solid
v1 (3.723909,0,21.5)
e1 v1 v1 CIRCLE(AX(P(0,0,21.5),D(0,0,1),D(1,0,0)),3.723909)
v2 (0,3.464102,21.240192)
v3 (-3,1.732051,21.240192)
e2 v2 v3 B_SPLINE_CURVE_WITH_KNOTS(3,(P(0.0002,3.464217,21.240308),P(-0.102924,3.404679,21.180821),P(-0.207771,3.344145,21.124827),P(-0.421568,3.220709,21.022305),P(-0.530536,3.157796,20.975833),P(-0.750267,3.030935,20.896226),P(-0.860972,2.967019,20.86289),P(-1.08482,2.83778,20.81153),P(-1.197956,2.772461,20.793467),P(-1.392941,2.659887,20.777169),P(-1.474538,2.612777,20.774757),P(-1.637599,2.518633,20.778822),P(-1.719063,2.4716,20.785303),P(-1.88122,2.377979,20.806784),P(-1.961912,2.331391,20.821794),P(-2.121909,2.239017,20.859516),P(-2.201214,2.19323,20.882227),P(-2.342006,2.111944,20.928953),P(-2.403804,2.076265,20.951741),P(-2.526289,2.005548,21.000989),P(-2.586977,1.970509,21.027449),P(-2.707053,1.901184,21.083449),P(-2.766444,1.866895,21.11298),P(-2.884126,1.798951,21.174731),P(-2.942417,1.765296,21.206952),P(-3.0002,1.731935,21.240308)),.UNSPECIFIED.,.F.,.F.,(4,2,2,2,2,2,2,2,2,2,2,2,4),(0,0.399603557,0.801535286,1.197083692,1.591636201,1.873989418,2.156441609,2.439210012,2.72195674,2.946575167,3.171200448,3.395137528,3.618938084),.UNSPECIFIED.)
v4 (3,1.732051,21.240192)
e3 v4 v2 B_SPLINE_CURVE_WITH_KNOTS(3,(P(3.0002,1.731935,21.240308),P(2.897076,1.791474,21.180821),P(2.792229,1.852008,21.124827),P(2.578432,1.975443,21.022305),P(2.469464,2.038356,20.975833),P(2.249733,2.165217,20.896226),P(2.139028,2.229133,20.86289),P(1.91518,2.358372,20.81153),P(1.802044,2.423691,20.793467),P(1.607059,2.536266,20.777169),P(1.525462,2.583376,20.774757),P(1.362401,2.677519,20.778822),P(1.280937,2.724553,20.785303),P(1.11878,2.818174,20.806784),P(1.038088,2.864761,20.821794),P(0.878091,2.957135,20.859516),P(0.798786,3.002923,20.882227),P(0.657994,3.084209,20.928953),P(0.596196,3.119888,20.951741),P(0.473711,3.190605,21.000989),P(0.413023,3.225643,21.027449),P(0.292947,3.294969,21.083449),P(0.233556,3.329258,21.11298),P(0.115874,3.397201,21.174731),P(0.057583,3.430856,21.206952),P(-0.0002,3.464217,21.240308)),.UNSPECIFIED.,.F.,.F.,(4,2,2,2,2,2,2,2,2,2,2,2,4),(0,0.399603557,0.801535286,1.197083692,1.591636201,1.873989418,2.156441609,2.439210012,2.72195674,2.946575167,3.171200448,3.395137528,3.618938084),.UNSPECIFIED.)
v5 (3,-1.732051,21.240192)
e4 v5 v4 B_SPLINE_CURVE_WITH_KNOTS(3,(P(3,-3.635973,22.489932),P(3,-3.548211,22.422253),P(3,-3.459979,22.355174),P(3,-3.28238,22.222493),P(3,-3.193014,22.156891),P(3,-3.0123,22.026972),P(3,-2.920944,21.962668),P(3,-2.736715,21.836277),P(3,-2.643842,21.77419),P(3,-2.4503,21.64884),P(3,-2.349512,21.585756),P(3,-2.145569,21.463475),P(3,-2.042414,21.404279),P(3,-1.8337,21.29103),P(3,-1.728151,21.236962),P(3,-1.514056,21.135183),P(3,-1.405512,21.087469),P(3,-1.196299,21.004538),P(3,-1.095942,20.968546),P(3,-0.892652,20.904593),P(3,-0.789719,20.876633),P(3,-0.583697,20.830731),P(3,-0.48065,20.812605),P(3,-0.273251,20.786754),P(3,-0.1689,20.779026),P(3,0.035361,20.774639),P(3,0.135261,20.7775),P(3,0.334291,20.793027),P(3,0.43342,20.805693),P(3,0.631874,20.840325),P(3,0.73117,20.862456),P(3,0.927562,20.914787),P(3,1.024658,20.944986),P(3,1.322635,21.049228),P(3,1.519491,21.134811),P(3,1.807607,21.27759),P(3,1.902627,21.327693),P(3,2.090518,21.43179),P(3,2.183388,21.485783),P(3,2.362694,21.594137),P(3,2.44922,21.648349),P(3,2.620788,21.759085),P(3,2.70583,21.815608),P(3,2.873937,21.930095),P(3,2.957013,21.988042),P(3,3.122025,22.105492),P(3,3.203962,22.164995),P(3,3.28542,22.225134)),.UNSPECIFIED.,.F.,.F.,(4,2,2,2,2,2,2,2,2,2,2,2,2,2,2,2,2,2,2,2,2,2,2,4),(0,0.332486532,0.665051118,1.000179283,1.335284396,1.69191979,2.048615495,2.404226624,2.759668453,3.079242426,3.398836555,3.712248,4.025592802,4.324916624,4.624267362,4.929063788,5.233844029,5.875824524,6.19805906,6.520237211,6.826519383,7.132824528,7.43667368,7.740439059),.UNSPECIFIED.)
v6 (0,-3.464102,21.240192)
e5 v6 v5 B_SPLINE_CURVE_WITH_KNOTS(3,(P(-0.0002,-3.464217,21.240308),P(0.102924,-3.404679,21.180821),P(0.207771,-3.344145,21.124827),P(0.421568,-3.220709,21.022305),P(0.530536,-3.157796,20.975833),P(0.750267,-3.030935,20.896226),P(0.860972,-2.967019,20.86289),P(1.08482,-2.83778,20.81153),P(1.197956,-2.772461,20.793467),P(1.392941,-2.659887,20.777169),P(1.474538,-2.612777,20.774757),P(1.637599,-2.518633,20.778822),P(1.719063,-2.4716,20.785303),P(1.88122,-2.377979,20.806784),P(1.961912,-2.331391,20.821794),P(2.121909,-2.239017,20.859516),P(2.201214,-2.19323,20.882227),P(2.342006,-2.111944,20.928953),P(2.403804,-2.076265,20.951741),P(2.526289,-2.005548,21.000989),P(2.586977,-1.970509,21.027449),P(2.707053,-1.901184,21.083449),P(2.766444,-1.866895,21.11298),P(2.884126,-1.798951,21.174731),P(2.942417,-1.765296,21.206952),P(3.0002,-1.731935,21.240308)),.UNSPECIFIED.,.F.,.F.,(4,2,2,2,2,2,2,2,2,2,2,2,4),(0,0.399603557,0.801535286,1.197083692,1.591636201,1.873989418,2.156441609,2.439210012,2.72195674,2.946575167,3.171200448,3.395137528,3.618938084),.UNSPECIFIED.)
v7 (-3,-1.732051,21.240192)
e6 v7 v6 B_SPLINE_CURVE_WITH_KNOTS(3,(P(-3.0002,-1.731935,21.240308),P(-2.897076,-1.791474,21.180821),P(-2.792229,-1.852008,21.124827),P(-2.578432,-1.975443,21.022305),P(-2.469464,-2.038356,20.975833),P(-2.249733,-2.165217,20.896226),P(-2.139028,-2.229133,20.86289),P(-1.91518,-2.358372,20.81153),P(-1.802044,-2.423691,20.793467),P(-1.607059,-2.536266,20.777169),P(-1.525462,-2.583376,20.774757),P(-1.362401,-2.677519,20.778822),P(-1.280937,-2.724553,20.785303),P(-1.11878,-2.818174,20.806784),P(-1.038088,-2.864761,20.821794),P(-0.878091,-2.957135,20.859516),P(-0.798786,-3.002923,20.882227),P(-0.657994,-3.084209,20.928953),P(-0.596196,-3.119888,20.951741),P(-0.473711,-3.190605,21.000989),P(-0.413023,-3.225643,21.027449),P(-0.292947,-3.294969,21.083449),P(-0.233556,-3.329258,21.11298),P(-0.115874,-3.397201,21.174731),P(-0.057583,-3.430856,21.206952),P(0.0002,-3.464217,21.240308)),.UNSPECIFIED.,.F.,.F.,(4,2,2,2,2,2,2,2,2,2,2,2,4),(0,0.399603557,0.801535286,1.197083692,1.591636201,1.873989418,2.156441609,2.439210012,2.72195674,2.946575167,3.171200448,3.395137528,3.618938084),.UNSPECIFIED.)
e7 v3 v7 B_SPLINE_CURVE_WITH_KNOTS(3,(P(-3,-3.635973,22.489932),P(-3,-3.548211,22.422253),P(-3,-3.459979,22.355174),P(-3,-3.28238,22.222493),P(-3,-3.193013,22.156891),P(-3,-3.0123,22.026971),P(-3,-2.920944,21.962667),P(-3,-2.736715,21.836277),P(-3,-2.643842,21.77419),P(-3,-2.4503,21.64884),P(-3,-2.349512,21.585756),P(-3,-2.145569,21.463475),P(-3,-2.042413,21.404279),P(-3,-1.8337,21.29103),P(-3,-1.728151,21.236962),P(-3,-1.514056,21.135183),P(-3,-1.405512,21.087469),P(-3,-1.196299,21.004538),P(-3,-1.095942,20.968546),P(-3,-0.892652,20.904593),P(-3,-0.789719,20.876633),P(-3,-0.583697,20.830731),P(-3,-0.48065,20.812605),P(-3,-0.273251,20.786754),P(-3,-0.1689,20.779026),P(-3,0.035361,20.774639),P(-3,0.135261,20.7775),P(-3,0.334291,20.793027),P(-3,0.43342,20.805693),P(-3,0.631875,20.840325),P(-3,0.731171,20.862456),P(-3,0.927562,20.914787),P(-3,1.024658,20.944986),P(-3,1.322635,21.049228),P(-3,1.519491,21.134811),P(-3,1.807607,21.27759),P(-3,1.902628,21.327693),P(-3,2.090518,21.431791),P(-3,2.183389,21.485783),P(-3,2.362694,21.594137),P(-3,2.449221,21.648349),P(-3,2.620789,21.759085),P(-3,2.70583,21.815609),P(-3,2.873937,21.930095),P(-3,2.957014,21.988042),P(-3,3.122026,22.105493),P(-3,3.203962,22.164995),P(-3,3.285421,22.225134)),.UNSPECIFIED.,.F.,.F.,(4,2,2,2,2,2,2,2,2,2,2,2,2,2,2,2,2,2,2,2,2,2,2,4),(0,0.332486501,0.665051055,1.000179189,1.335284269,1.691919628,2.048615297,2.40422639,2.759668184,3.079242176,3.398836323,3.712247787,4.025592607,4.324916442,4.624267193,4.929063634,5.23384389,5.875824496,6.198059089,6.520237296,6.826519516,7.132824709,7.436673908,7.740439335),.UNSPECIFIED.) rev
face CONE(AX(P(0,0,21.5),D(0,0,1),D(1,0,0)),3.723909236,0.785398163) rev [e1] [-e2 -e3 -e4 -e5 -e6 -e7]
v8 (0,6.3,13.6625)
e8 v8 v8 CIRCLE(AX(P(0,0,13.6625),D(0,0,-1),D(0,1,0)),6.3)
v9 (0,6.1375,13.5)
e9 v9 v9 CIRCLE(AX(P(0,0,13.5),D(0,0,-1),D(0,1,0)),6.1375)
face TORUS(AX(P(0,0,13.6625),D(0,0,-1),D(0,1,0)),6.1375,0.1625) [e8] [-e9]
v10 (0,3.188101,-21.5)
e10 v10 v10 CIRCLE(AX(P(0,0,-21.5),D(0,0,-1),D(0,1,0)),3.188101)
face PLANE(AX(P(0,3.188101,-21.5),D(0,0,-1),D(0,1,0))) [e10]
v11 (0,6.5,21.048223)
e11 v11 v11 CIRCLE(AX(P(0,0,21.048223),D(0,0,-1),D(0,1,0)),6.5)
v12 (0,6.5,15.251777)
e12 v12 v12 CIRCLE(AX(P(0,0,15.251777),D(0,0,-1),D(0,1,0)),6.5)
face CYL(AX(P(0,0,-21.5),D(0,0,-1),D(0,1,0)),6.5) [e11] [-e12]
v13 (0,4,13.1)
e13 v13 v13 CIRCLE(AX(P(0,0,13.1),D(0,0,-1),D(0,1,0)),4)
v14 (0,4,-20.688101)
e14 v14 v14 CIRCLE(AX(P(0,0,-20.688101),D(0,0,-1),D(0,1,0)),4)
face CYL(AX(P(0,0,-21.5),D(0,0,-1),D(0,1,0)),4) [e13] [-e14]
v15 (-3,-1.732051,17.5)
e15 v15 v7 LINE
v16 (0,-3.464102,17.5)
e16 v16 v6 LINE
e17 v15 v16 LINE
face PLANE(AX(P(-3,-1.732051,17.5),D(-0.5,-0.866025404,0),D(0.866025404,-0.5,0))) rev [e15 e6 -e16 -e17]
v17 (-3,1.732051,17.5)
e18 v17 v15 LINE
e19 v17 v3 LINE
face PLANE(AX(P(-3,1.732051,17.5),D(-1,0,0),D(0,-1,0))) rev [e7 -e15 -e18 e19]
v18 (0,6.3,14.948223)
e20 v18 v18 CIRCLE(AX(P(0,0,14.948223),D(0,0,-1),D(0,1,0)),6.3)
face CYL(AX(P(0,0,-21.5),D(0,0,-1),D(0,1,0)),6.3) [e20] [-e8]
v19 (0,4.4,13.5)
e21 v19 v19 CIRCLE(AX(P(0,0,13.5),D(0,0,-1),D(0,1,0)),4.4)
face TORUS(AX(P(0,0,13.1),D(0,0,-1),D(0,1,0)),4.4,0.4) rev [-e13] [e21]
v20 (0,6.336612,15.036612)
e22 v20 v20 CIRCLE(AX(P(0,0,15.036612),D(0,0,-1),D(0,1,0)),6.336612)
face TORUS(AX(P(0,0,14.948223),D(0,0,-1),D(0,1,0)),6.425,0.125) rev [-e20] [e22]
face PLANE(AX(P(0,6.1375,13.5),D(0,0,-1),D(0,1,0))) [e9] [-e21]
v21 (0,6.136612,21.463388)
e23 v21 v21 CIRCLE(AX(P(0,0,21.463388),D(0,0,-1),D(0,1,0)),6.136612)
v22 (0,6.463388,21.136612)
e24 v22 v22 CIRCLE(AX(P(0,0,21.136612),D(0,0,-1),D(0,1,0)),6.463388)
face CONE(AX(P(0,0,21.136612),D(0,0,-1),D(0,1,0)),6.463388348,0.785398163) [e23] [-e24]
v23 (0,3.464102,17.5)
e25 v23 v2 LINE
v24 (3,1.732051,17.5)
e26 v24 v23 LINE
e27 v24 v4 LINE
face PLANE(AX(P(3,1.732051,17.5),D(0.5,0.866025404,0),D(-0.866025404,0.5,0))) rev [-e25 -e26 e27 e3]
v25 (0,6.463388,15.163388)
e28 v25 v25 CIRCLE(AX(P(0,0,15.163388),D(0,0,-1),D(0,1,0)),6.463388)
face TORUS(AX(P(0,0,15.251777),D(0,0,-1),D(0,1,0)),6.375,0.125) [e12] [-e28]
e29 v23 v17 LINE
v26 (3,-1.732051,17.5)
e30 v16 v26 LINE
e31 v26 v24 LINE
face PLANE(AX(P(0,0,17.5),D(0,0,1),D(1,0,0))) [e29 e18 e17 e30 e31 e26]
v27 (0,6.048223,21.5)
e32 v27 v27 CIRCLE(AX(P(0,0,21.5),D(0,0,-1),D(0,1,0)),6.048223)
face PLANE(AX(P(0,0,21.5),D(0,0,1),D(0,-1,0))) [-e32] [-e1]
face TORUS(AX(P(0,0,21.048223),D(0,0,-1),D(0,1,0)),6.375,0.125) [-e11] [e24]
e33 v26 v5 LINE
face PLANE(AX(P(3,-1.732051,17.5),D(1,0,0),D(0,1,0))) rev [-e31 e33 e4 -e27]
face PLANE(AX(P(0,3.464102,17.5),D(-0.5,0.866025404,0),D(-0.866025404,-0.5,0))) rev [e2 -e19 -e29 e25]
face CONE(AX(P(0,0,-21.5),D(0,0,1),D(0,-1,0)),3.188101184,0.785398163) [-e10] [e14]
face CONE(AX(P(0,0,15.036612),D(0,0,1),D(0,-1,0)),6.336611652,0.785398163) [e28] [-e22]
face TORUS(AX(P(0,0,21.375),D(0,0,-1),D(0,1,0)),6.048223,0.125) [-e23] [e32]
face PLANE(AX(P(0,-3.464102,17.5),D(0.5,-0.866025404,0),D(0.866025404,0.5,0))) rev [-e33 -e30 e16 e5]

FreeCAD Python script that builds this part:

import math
import FreeCAD as App
import Part
import Sketcher
from FreeCAD import Vector
Q = App.Units.Quantity

doc = App.newDocument("Part")
body = doc.addObject("PartDesign::Body", "Body")

# Sketch on YZ plane
sketch1 = doc.addObject("Sketcher::SketchObject", "Sketch")
body.addObject(sketch1)
sketch1.AttachmentSupport = (doc.YZ_Plane, [""])
sketch1.MapMode = "FlatFace"
sketch1.addGeometry(Part.LineSegment(Vector(6.05, 21.5, 0), Vector(0, 21.5, 0)), False)
sketch1.addGeometry(Part.LineSegment(Vector(0, 21.5, 0), Vector(0, -21.5, 0)), False)
sketch1.addGeometry(Part.LineSegment(Vector(0, -21.5, 0), Vector(3.19, -21.5, 0)), False)
sketch1.addGeometry(Part.LineSegment(Vector(3.19, -21.5, 0), Vector(4, -20.69, 0)), False)
sketch1.addGeometry(Part.LineSegment(Vector(4, -20.69, 0), Vector(4, 13.1, 0)), False)
sketch1.addGeometry(Part.ArcOfCircle(Part.Circle(Vector(4.4, 13.1, 0), Vector(0, 0, 1), 0.4), math.radians(90), math.radians(180)), False)
sketch1.addGeometry(Part.LineSegment(Vector(4.4, 13.5, 0), Vector(6.14, 13.5, 0)), False)
sketch1.addGeometry(Part.ArcOfCircle(Part.Circle(Vector(6.14, 13.66, 0), Vector(0, 0, 1), 0.16), math.radians(-90), math.radians(0)), False)
sketch1.addGeometry(Part.LineSegment(Vector(6.3, 13.66, 0), Vector(6.3, 14.95, 0)), False)
sketch1.addGeometry(Part.ArcOfCircle(Part.Circle(Vector(6.42, 14.95, 0), Vector(0, 0, 1), 0.12), math.radians(135), math.radians(180)), False)
sketch1.addGeometry(Part.LineSegment(Vector(6.34, 15.04, 0), Vector(6.46, 15.16, 0)), False)
sketch1.addGeometry(Part.ArcOfCircle(Part.Circle(Vector(6.38, 15.25, 0), Vector(0, 0, 1), 0.12), math.radians(-45), math.radians(0)), False)
sketch1.addGeometry(Part.LineSegment(Vector(6.5, 15.25, 0), Vector(6.5, 21.05, 0)), False)
sketch1.addGeometry(Part.ArcOfCircle(Part.Circle(Vector(6.38, 21.05, 0), Vector(0, 0, 1), 0.12), math.radians(0), math.radians(45)), False)
sketch1.addGeometry(Part.LineSegment(Vector(6.46, 21.14, 0), Vector(6.14, 21.46, 0)), False)
sketch1.addGeometry(Part.ArcOfCircle(Part.Circle(Vector(6.05, 21.38, 0), Vector(0, 0, 1), 0.12), math.radians(45), math.radians(90)), False)
sketch1.addConstraint(Sketcher.Constraint("Coincident", 0, 2, 1, 1))
sketch1.addConstraint(Sketcher.Constraint("Coincident", 1, 2, 2, 1))
sketch1.addConstraint(Sketcher.Constraint("Coincident", 2, 2, 3, 1))
sketch1.addConstraint(Sketcher.Constraint("Coincident", 3, 2, 4, 1))
sketch1.addConstraint(Sketcher.Constraint("Tangent", 4, 2, 5, 2))
sketch1.addConstraint(Sketcher.Constraint("Tangent", 5, 1, 6, 1))
sketch1.addConstraint(Sketcher.Constraint("Tangent", 6, 2, 7, 1))
sketch1.addConstraint(Sketcher.Constraint("Tangent", 7, 2, 8, 1))
sketch1.addConstraint(Sketcher.Constraint("Tangent", 8, 2, 9, 2))
sketch1.addConstraint(Sketcher.Constraint("Tangent", 9, 1, 10, 1))
sketch1.addConstraint(Sketcher.Constraint("Tangent", 10, 2, 11, 1))
sketch1.addConstraint(Sketcher.Constraint("Tangent", 11, 2, 12, 1))
sketch1.addConstraint(Sketcher.Constraint("Tangent", 12, 2, 13, 1))
sketch1.addConstraint(Sketcher.Constraint("Tangent", 13, 2, 14, 1))
sketch1.addConstraint(Sketcher.Constraint("Tangent", 14, 2, 15, 1))
sketch1.addConstraint(Sketcher.Constraint("Tangent", 15, 2, 0, 1))
sketch1.addConstraint(Sketcher.Constraint("Horizontal", 0))
sketch1.addConstraint(Sketcher.Constraint("Vertical", 1))
sketch1.addConstraint(Sketcher.Constraint("Horizontal", 2))
sketch1.addConstraint(Sketcher.Constraint("Vertical", 4))
sketch1.addConstraint(Sketcher.Constraint("Horizontal", 6))
sketch1.addConstraint(Sketcher.Constraint("Vertical", 8))
sketch1.addConstraint(Sketcher.Constraint("Vertical", 12))
sketch1.addConstraint(Sketcher.Constraint("Equal", 9, 11))
sketch1.addConstraint(Sketcher.Constraint("Equal", 11, 13))
sketch1.addConstraint(Sketcher.Constraint("Equal", 13, 15))
sketch1.addConstraint(Sketcher.Constraint("Symmetric", 0, 2, 1, 2, -1, 1))
sketch1.addConstraint(Sketcher.Constraint("Parallel", 3, 10))
sketch1.addConstraint(Sketcher.Constraint("Perpendicular", 10, 14))
sketch1.addConstraint(Sketcher.Constraint("Vertical", 10, 2, 13, 2))
sketch1.addConstraint(Sketcher.Constraint("Radius", 5, Q("0.4 mm")))
sketch1.addConstraint(Sketcher.Constraint("DistanceY", 1, 2, 1, 1, Q("43 mm")))
sketch1.addConstraint(Sketcher.Constraint("DistanceX", -1, 1, 3, 2, Q("4 mm")))
sketch1.addConstraint(Sketcher.Constraint("Radius", 9, Q("0.125 mm")))
sketch1.addConstraint(Sketcher.Constraint("DistanceY", -1, 1, 5, 3, Q("13.1 mm")))
sketch1.addConstraint(Sketcher.Constraint("DistanceX", -1, 1, 7, 2, Q("6.3 mm")))
sketch1.addConstraint(Sketcher.Constraint("DistanceX", -1, 1, 11, 2, Q("6.5 mm")))
sketch1.addConstraint(Sketcher.Constraint("Radius", 7, Q("0.1625 mm")))
sketch1.addConstraint(Sketcher.Constraint("DistanceY", 9, 3, 13, 3, Q("6.1 mm")))
sketch1.addConstraint(Sketcher.Constraint("DistanceX", 2, 1, 2, 2, Q("3.188101 mm")))
sketch1.addConstraint(Sketcher.Constraint("DistanceX", 0, 2, 0, 1, Q("6.048223 mm")))
revolution = doc.addObject("PartDesign::Revolution", "Revolution")
body.addObject(revolution)
revolution.Profile = sketch1
revolution.ReferenceAxis = (sketch1, ["V_Axis"])
revolution.Angle = 360

# Sketch on XY plane
sketch2 = doc.addObject("Sketcher::SketchObject", "Sketch001")
body.addObject(sketch2)
sketch2.AttachmentSupport = (doc.XY_Plane, [""])
sketch2.MapMode = "FlatFace"
sketch2.AttachmentOffset = App.Placement(Vector(0, 0, 17.5), App.Rotation())
sketch2.addGeometry(Part.LineSegment(Vector(3, -1.7, 0), Vector(3, 1.7, 0)), False)
sketch2.addGeometry(Part.LineSegment(Vector(3, 1.7, 0), Vector(0, 3.5, 0)), False)
sketch2.addGeometry(Part.LineSegment(Vector(0, 3.5, 0), Vector(-3, 1.7, 0)), False)
sketch2.addGeometry(Part.LineSegment(Vector(-3, 1.7, 0), Vector(-3, -1.7, 0)), False)
sketch2.addGeometry(Part.LineSegment(Vector(-3, -1.7, 0), Vector(0, -3.5, 0)), False)
sketch2.addGeometry(Part.LineSegment(Vector(0, -3.5, 0), Vector(3, -1.7, 0)), False)
sketch2.addConstraint(Sketcher.Constraint("Coincident", 0, 2, 1, 1))
sketch2.addConstraint(Sketcher.Constraint("Coincident", 1, 2, 2, 1))
sketch2.addConstraint(Sketcher.Constraint("Coincident", 2, 2, 3, 1))
sketch2.addConstraint(Sketcher.Constraint("Coincident", 3, 2, 4, 1))
sketch2.addConstraint(Sketcher.Constraint("Coincident", 4, 2, 5, 1))
sketch2.addConstraint(Sketcher.Constraint("Coincident", 5, 2, 0, 1))
sketch2.addConstraint(Sketcher.Constraint("Vertical", 0))
sketch2.addConstraint(Sketcher.Constraint("Vertical", 3))
sketch2.addConstraint(Sketcher.Constraint("Symmetric", 0, 2, 3, 2, -1, 1))
sketch2.addConstraint(Sketcher.Constraint("Symmetric", 1, 2, 4, 2, -1, 1))
sketch2.addConstraint(Sketcher.Constraint("PointOnObject", 1, 2, -2))
sketch2.addConstraint(Sketcher.Constraint("Parallel", 2, 5))
sketch2.addConstraint(Sketcher.Constraint("Horizontal", 0, 2, 2, 2))
sketch2.addConstraint(Sketcher.Constraint("Angle", 1, Q("150 deg")))
sketch2.addConstraint(Sketcher.Constraint("DistanceX", -1, 1, 0, 2, Q("3 mm")))
sketch2.addConstraint(Sketcher.Constraint("DistanceY", 0, 1, 0, 2, Q("3.464102 mm")))
pocket1 = doc.addObject("PartDesign::Pocket", "Pocket")
body.addObject(pocket1)
pocket1.Profile = sketch2
pocket1.Length = 4
pocket1.Reversed = True

# Sketch on YZ plane
sketch3 = doc.addObject("Sketcher::SketchObject", "Sketch002")
body.addObject(sketch3)
sketch3.AttachmentSupport = (doc.YZ_Plane, [""])
sketch3.MapMode = "FlatFace"
sketch3.addGeometry(Part.LineSegment(Vector(0, 21.5, 0), Vector(-3.7, 21.5, 0)), False)
sketch3.addGeometry(Part.LineSegment(Vector(-3.7, 21.5, 0), Vector(0, 17.8, 0)), False)
sketch3.addGeometry(Part.LineSegment(Vector(0, 17.8, 0), Vector(0, 21.5, 0)), False)
sketch3.addConstraint(Sketcher.Constraint("Coincident", 0, 2, 1, 1))
sketch3.addConstraint(Sketcher.Constraint("Coincident", 1, 2, 2, 1))
sketch3.addConstraint(Sketcher.Constraint("Coincident", 2, 2, 0, 1))
sketch3.addConstraint(Sketcher.Constraint("Horizontal", 0))
sketch3.addConstraint(Sketcher.Constraint("Vertical", 2))
sketch3.addConstraint(Sketcher.Constraint("PointOnObject", 1, 2, -2))
sketch3.addConstraint(Sketcher.Constraint("Equal", 0, 2))
sketch3.addConstraint(Sketcher.Constraint("DistanceY", -1, 1, 0, 2, Q("21.5 mm")))
sketch3.addConstraint(Sketcher.Constraint("DistanceX", 0, 2, 0, 1, Q("3.723909 mm")))
groove = doc.addObject("PartDesign::Groove", "Groove")
body.addObject(groove)
groove.Profile = sketch3
groove.ReferenceAxis = (sketch3, ["V_Axis"])
groove.Angle = 360

doc.recompute()
